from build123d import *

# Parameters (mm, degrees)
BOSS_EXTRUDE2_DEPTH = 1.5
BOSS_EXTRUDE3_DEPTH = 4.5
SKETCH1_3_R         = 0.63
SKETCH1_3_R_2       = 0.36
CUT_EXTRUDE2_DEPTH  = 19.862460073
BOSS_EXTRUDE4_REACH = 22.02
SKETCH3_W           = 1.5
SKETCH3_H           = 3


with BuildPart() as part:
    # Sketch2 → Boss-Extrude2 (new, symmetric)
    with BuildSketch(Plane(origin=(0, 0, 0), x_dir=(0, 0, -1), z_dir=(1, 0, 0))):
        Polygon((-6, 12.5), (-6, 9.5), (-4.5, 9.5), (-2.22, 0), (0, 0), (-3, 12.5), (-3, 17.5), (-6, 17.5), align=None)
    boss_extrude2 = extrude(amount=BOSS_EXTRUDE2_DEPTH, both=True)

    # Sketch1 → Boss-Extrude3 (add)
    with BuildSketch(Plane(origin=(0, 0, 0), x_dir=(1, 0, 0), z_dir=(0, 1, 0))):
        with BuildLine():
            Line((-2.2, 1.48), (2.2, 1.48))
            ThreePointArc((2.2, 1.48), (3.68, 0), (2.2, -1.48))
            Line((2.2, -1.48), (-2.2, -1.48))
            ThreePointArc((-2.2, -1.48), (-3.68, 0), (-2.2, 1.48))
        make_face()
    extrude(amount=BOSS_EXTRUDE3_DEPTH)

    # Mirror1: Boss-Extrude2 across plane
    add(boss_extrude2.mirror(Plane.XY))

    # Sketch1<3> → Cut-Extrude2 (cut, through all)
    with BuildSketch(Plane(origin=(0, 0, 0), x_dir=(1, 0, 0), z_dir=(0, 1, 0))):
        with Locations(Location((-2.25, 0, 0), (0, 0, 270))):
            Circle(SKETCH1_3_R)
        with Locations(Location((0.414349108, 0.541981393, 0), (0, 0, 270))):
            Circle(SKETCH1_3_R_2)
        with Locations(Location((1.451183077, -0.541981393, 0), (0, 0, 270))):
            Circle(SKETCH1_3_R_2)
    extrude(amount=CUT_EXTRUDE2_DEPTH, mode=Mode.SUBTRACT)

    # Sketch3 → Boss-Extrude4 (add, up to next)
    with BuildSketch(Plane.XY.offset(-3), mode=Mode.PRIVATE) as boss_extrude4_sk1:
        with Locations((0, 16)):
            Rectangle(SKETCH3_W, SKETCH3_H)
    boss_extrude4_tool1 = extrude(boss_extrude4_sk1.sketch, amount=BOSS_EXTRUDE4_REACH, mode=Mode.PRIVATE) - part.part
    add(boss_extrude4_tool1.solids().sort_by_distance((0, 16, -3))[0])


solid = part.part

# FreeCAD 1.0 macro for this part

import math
import FreeCAD as App
import Part
import Sketcher

doc = App.newDocument("Part")
body = doc.addObject("PartDesign::Body", "Body")

# Sketch on YZ plane
sketch1 = body.newObject("Sketcher::SketchObject", "Sketch")
sketch1.AttachmentSupport = (doc.getObject("YZ_Plane"), [""])
sketch1.MapMode = "FlatFace"
sketch1.addGeometry([
    Part.LineSegment(App.Vector(9.5, 6, 0), App.Vector(9.5, 4.5, 0)),  # 0
    Part.LineSegment(App.Vector(9.5, 4.5, 0), App.Vector(0, 2.22, 0)),  # 1
    Part.LineSegment(App.Vector(0, 2.22, 0), App.Vector(0, 0, 0)),  # 2
    Part.LineSegment(App.Vector(0, 0, 0), App.Vector(12.5, 3, 0)),  # 3
    Part.LineSegment(App.Vector(12.5, 3, 0), App.Vector(17.5, 3, 0)),  # 4
    Part.LineSegment(App.Vector(17.5, 3, 0), App.Vector(17.5, 6, 0)),  # 5
    Part.LineSegment(App.Vector(17.5, 6, 0), App.Vector(9.5, 6, 0)),  # 6
], False)
sketch1.addConstraint([
    Sketcher.Constraint("Coincident", 0, 2, 1, 1),
    Sketcher.Constraint("Coincident", 1, 2, 2, 1),
    Sketcher.Constraint("Coincident", 2, 2, 3, 1),
    Sketcher.Constraint("Coincident", 3, 2, 4, 1),
    Sketcher.Constraint("Coincident", 4, 2, 5, 1),
    Sketcher.Constraint("Coincident", 5, 2, 6, 1),
    Sketcher.Constraint("Coincident", 6, 2, 0, 1),
    Sketcher.Constraint("Vertical", 0),
    Sketcher.Constraint("Vertical", 2),
    Sketcher.Constraint("Horizontal", 4),
    Sketcher.Constraint("Vertical", 5),
    Sketcher.Constraint("Horizontal", 6),
    Sketcher.Constraint("Coincident", 2, 2, -1, 1),
    Sketcher.Constraint("Parallel", 1, 3),
    Sketcher.Constraint("DistanceX", 4, 1, 4, 2, 5.0),
    Sketcher.Constraint("DistanceX", 6, 2, 6, 1, 8.0),
    Sketcher.Constraint("DistanceY", 5, 1, 5, 2, 3.0),
    Sketcher.Constraint("DistanceY", 0, 2, 0, 1, 1.5),
    Sketcher.Constraint("DistanceY", -1, 1, 3, 2, 3.0),
    Sketcher.Constraint("DistanceY", 2, 2, 2, 1, 2.22),
])
pad1 = body.newObject("PartDesign::Pad", "Pad")
pad1.Profile = sketch1
pad1.Length = 3
pad1.Midplane = True

# Sketch on XZ plane
sketch2 = body.newObject("Sketcher::SketchObject", "Sketch001")
sketch2.AttachmentSupport = (doc.getObject("XZ_Plane"), [""])
sketch2.MapMode = "FlatFace"
sketch2.addGeometry([
    Part.LineSegment(App.Vector(2.2, -1.48, 0), App.Vector(-2.2, -1.48, 0)),
    Part.ArcOfCircle(Part.Circle(App.Vector(-2.2, 0, 0), App.Vector(0, 0, 1), 1.48), math.radians(90), math.radians(270)),
    Part.LineSegment(App.Vector(-2.2, 1.48, 0), App.Vector(2.2, 1.48, 0)),
    Part.ArcOfCircle(Part.Circle(App.Vector(2.2, 0, 0), App.Vector(0, 0, 1), 1.48), math.radians(-90), math.radians(90)),
], False)
sketch2.addConstraint([
    Sketcher.Constraint("Tangent", 0, 2, 1, 2),
    Sketcher.Constraint("Tangent", 1, 1, 2, 1),
    Sketcher.Constraint("Tangent", 2, 2, 3, 2),
    Sketcher.Constraint("Tangent", 3, 1, 0, 1),
    Sketcher.Constraint("Horizontal", 0),
    Sketcher.Constraint("Horizontal", 2),
    Sketcher.Constraint("Symmetric", 1, 3, 3, 3, -1, 1),
    Sketcher.Constraint("Radius", 1, 1.48),
    Sketcher.Constraint("DistanceX", 0, 2, 0, 1, 4.4),
])
pad2 = body.newObject("PartDesign::Pad", "Pad001")
pad2.Profile = sketch2
pad2.Length = 4.5
pad2.Reversed = True
doc.recompute()

mirrored = body.newObject("PartDesign::Mirrored", "Mirrored")
mirrored.Originals = [pad1]
mirrored.MirrorPlane = (doc.getObject("XY_Plane"), [""])
body.Tip = mirrored

# Sketch on XZ plane
sketch3 = body.newObject("Sketcher::SketchObject", "Sketch002")
sketch3.AttachmentSupport = (doc.getObject("XZ_Plane"), [""])
sketch3.MapMode = "FlatFace"
sketch3.addGeometry([
    Part.Circle(App.Vector(-2.25, 0, 0), App.Vector(0, 0, 1), 0.63),
    Part.Circle(App.Vector(0.414349, -0.541981, 0), App.Vector(0, 0, 1), 0.36),
    Part.Circle(App.Vector(1.451183, 0.541981, 0), App.Vector(0, 0, 1), 0.36),
], False)
sketch3.addConstraint([
    Sketcher.Constraint("Equal", 1, 2),
    Sketcher.Constraint("PointOnObject", 0, 3, -1),
    Sketcher.Constraint("Diameter", 0, 1.26),
    Sketcher.Constraint("Diameter", 1, 0.72),
    Sketcher.Constraint("DistanceX", 0, 3, -1, 1, 2.25),
    Sketcher.Constraint("DistanceX", -1, 1, 1, 3, 0.414349),
    Sketcher.Constraint("DistanceY", 1, 3, -1, 1, 0.541981),
    Sketcher.Constraint("DistanceY", -1, 1, 2, 3, 0.541981),
    Sketcher.Constraint("DistanceX", -1, 1, 2, 3, 1.451183),
])
pocket1 = body.newObject("PartDesign::Pocket", "Pocket")
pocket1.Profile = sketch3
pocket1.Type = "ThroughAll"

# Sketch on XY plane
sketch4 = body.newObject("Sketcher::SketchObject", "Sketch003")
sketch4.AttachmentSupport = (doc.getObject("XY_Plane"), [""])
sketch4.MapMode = "FlatFace"
sketch4.AttachmentOffset = App.Placement(App.Vector(0, 0, -3), App.Rotation())
sketch4.addGeometry([
    Part.LineSegment(App.Vector(-0.75, 17.5, 0), App.Vector(-0.75, 14.5, 0)),
    Part.LineSegment(App.Vector(-0.75, 14.5, 0), App.Vector(0.75, 14.5, 0)),
    Part.LineSegment(App.Vector(0.75, 14.5, 0), App.Vector(0.75, 17.5, 0)),
    Part.LineSegment(App.Vector(0.75, 17.5, 0), App.Vector(-0.75, 17.5, 0)),
], False)
sketch4.addConstraint([
    Sketcher.Constraint("Coincident", 0, 2, 1, 1),
    Sketcher.Constraint("Coincident", 1, 2, 2, 1),
    Sketcher.Constraint("Coincident", 2, 2, 3, 1),
    Sketcher.Constraint("Coincident", 3, 2, 0, 1),
    Sketcher.Constraint("Vertical", 0),
    Sketcher.Constraint("Horizontal", 1),
    Sketcher.Constraint("Vertical", 2),
    Sketcher.Constraint("Horizontal", 3),
    Sketcher.Constraint("DistanceY", 0, 2, 0, 1, 3.0),
    Sketcher.Constraint("DistanceX", 1, 1, 1, 2, 1.5),
    Sketcher.Constraint("DistanceY", -1, 1, 0, 2, 14.5),
    Sketcher.Constraint("DistanceX", 0, 2, -1, 1, 0.75),
])
pad3 = body.newObject("PartDesign::Pad", "Pad002")
pad3.Profile = sketch4
pad3.Type = "UpToFirst"

doc.recompute()
